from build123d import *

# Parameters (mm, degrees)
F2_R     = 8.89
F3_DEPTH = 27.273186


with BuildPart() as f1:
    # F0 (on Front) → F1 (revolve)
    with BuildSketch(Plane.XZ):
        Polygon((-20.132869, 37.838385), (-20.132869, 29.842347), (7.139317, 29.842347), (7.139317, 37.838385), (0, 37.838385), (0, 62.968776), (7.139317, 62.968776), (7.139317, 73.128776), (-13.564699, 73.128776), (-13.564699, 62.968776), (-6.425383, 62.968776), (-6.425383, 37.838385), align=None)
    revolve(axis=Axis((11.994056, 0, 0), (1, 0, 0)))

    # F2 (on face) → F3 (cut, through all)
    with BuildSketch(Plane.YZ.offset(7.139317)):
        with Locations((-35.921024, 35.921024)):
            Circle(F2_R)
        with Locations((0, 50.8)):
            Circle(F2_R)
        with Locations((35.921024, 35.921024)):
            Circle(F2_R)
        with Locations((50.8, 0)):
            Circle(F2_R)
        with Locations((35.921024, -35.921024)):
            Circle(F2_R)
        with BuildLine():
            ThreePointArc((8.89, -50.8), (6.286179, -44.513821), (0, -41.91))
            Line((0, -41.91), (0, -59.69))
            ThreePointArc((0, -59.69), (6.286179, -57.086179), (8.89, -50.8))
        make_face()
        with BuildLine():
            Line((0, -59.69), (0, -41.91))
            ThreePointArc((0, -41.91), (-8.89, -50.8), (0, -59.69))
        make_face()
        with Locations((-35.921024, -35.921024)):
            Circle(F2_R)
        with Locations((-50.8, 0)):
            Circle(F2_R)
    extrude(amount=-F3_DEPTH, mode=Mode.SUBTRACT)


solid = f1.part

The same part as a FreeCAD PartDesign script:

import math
import FreeCAD as App
import Part
import Sketcher

V = App.Vector
Q = App.Units.Quantity


def add_polygon(sketch, points):
    """Adds a closed chain of lines whose ends are joined by coincident constraints."""
    first, n = sketch.GeometryCount, len(points)
    for a, b in zip(points, points[1:] + points[:1]):
        sketch.addGeometry(Part.LineSegment(App.Vector(*a, 0), App.Vector(*b, 0)), False)
    for i in range(n):
        sketch.addConstraint(Sketcher.Constraint("Coincident", first + i, 2, first + (i + 1) % n, 1))

doc = App.newDocument("Part")
body = doc.addObject("PartDesign::Body", "Body")

# Sketch on XZ plane
sketch1 = doc.addObject("Sketcher::SketchObject", "Sketch")
body.addObject(sketch1)
sketch1.AttachmentSupport = (doc.XZ_Plane, [""])
sketch1.MapMode = "FlatFace"
add_polygon(sketch1, [(-20, 38), (-20, 30), (7, 30), (7, 38), (0, 38), (0, 63), (7, 63), (7, 73), (-14, 73), (-14, 63), (-6, 63), (-6, 38)])  # lines 0-11
sketch1.addConstraint([
    Sketcher.Constraint("Vertical", 0),
    Sketcher.Constraint("Horizontal", 1),
    Sketcher.Constraint("Vertical", 2),
    Sketcher.Constraint("Horizontal", 3),
    Sketcher.Constraint("Vertical", 4),
    Sketcher.Constraint("Horizontal", 5),
    Sketcher.Constraint("Vertical", 6),
    Sketcher.Constraint("Horizontal", 7),
    Sketcher.Constraint("Vertical", 8),
    Sketcher.Constraint("Horizontal", 9),
    Sketcher.Constraint("Vertical", 10),
    Sketcher.Constraint("Horizontal", 11),
    Sketcher.Constraint("PointOnObject", 3, 2, -2),
    Sketcher.Constraint("Horizontal", 5, 2, 8, 2),
    Sketcher.Constraint("Horizontal", 3, 2, 10, 2),
    Sketcher.Constraint("Vertical", 2, 2, 5, 2),
    Sketcher.Constraint("Equal", 5, 9),
    Sketcher.Constraint("DistanceY", 6, 1, 6, 2, Q("0.4 in")),
    Sketcher.Constraint("DistanceY", -1, 1, 2, 2, Q("1.4897002 in")),
    Sketcher.Constraint("DistanceY", 0, 2, 0, 1, 7.996038),
    Sketcher.Constraint("DistanceY", 4, 1, 4, 2, 25.130391),
    Sketcher.Constraint("DistanceX", 7, 2, -1, 1, 13.564699),
    Sketcher.Constraint("DistanceX", 1, 1, 1, 2, 27.272186),
    Sketcher.Constraint("DistanceX", 3, 2, 3, 1, 7.139317),
])
revolution = doc.addObject("PartDesign::Revolution", "Revolution")
body.addObject(revolution)
revolution.Profile = sketch1
revolution.ReferenceAxis = (sketch1, ["H_Axis"])
revolution.Angle = 360

# Sketch on YZ plane
sketch2 = doc.addObject("Sketcher::SketchObject", "Sketch001")
body.addObject(sketch2)
sketch2.AttachmentSupport = (doc.YZ_Plane, [""])
sketch2.MapMode = "FlatFace"
sketch2.AttachmentOffset = App.Placement(V(0, 0, 7.139317), App.Rotation())
sketch2.addGeometry([
    Part.Circle(V(-36, 36, 0), V(0, 0, 1), 9),  # 0
    Part.Circle(V(0, 51, 0), V(0, 0, 1), 9),  # 1
    Part.Circle(V(36, 36, 0), V(0, 0, 1), 9),  # 2
    Part.Circle(V(51, 0, 0), V(0, 0, 1), 9),  # 3
    Part.Circle(V(36, -36, 0), V(0, 0, 1), 9),  # 4
    Part.ArcOfCircle(Part.Circle(V(0, -51, 0), V(0, 0, 1), 9), math.radians(0), math.radians(90)),  # 5
    Part.ArcOfCircle(Part.Circle(V(0, -51, 0), V(0, 0, 1), 9), math.radians(90), math.radians(270)),  # 6
    Part.ArcOfCircle(Part.Circle(V(0, -51, 0), V(0, 0, 1), 9), math.radians(-90), math.radians(0)),  # 7
    Part.Circle(V(-36, -36, 0), V(0, 0, 1), 9),  # 8
    Part.Circle(V(-51, 0, 0), V(0, 0, 1), 9),  # 9
], False)
sketch2.addConstraint([
    Sketcher.Constraint("Tangent", 5, 2, 6, 1),
    Sketcher.Constraint("Tangent", 6, 2, 7, 1),
    Sketcher.Constraint("Tangent", 7, 2, 5, 1),
    Sketcher.Constraint("Equal", 0, 1),
    Sketcher.Constraint("Equal", 1, 2),
    Sketcher.Constraint("Equal", 2, 3),
    Sketcher.Constraint("Equal", 3, 4),
    Sketcher.Constraint("Equal", 4, 5),
    Sketcher.Constraint("Equal", 7, 8),
    Sketcher.Constraint("Equal", 8, 9),
    Sketcher.Constraint("Symmetric", 0, 3, 4, 3, -1, 1),
    Sketcher.Constraint("Symmetric", 1, 3, 5, 3, -1, 1),
    Sketcher.Constraint("Symmetric", 2, 3, 8, 3, -1, 1),
    Sketcher.Constraint("Symmetric", 3, 3, 9, 3, -1, 1),
    Sketcher.Constraint("Symmetric", 0, 3, 2, 3, -2),
    Sketcher.Constraint("PointOnObject", 1, 3, -2),
    Sketcher.Constraint("PointOnObject", 3, 3, -1),
    Sketcher.Constraint("PointOnObject", 5, 2, -2),
    Sketcher.Constraint("PointOnObject", 6, 2, -2),
    Sketcher.Constraint("Horizontal", 6, 3, 7, 2),
    Sketcher.Constraint("Diameter", 0, Q("0.7 in")),
    Sketcher.Constraint("DistanceY", -1, 1, 1, 3, Q("2 in")),
    Sketcher.Constraint("DistanceX", -1, 1, 3, 3, Q("2 in")),
    Sketcher.Constraint("DistanceX", 0, 3, 2, 3, 71.842048),
    Sketcher.Constraint("DistanceY", 4, 3, 2, 3, 71.842048),
])
pocket1 = doc.addObject("PartDesign::Pocket", "Pocket")
body.addObject(pocket1)
pocket1.Profile = sketch2
pocket1.Type = "ThroughAll"

doc.recompute()
